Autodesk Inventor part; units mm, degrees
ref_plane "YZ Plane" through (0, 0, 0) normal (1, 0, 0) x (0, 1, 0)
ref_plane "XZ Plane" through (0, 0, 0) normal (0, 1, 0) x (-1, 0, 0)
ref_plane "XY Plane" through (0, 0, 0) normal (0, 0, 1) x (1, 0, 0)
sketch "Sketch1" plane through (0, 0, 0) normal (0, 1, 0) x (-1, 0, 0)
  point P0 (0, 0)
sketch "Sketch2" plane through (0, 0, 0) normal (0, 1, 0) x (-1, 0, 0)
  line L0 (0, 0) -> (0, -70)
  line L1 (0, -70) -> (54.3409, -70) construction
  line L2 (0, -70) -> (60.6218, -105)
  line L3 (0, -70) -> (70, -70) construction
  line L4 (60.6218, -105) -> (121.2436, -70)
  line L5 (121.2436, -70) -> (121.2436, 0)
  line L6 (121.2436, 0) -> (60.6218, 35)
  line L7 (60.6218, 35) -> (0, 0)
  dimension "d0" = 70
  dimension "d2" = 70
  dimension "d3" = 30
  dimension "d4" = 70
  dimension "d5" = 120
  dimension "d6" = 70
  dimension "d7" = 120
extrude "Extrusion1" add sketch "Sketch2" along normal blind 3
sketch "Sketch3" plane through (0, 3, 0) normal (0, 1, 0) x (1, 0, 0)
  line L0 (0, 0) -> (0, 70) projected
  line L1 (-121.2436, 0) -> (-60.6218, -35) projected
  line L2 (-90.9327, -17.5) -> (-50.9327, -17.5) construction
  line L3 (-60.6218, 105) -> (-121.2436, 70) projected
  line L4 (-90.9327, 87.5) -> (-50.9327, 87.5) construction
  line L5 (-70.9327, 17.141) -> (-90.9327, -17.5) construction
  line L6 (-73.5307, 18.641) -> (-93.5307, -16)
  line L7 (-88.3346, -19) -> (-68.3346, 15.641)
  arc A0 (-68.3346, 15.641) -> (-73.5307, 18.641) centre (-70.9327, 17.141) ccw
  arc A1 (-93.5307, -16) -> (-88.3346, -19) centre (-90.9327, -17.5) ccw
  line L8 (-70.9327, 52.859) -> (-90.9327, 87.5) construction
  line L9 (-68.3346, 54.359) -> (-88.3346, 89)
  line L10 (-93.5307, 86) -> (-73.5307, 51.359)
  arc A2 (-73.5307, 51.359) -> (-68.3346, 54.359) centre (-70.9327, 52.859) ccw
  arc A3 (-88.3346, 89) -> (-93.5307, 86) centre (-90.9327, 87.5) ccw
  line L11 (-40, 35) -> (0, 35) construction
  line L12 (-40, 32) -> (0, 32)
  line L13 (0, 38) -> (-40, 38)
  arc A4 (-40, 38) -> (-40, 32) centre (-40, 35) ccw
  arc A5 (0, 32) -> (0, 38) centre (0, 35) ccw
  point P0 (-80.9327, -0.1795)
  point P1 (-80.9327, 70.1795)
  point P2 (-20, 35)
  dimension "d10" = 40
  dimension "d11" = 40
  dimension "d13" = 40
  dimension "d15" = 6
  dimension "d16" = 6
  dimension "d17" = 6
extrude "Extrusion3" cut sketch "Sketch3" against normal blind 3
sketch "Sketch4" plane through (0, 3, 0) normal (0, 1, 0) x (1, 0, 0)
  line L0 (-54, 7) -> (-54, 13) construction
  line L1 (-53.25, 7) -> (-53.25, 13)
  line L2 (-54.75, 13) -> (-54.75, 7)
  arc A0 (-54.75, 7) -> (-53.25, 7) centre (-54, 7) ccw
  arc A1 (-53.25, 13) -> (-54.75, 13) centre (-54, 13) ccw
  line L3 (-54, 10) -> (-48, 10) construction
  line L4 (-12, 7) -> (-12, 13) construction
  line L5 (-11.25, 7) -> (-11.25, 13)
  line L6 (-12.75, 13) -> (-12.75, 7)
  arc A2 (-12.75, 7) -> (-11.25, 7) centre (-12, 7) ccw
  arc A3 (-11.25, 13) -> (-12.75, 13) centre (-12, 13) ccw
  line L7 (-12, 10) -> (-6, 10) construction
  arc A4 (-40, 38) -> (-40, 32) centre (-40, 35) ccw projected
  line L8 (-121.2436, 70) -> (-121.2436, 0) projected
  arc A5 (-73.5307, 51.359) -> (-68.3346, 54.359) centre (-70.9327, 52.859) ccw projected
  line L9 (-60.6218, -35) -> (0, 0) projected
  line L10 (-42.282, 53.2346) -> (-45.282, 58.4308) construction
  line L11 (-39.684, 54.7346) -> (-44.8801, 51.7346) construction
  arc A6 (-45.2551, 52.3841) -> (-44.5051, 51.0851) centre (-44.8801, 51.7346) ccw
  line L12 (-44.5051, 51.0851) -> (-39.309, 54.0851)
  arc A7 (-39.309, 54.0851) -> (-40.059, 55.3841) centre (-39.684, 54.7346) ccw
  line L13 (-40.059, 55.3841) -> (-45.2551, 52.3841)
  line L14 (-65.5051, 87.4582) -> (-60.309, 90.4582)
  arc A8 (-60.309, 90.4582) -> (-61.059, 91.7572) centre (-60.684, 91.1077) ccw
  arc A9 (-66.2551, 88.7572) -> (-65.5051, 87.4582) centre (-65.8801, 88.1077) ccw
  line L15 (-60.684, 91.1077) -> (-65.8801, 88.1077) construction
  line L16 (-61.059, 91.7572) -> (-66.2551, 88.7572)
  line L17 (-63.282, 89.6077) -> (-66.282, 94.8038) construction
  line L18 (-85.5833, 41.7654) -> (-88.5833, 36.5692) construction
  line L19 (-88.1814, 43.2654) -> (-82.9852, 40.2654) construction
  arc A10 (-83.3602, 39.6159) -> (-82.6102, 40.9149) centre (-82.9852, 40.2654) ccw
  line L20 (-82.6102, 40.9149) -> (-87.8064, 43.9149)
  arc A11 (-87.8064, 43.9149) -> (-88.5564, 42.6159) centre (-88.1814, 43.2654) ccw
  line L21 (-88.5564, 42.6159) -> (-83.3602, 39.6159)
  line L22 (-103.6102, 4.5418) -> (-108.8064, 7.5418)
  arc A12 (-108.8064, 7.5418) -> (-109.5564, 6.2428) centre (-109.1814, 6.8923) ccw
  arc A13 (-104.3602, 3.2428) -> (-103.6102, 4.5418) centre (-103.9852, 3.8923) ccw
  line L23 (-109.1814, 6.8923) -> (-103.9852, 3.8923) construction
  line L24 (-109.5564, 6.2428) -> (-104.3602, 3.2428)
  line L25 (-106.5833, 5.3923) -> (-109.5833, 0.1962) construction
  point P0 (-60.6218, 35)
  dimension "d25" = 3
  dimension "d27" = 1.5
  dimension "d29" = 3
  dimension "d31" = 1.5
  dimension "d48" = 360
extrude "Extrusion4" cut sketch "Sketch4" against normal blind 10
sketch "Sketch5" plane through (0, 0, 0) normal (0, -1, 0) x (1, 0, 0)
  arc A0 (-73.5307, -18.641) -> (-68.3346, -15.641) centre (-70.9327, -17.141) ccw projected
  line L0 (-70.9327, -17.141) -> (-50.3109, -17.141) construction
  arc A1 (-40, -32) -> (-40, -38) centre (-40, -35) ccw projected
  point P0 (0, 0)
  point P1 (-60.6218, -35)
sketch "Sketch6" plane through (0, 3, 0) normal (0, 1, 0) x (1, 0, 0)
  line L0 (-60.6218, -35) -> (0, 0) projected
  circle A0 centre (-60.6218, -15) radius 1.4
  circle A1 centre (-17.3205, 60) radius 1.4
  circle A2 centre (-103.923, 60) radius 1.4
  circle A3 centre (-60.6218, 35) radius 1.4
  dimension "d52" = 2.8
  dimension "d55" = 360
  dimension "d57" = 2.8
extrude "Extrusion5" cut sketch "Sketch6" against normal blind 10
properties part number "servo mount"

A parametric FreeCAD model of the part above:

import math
import FreeCAD as App
import Part
import Sketcher
from FreeCAD import Vector
Q = App.Units.Quantity


def add_polygon(sketch, points):
    """Adds a closed chain of lines whose ends are joined by coincident constraints."""
    first, n = sketch.GeometryCount, len(points)
    for a, b in zip(points, points[1:] + points[:1]):
        sketch.addGeometry(Part.LineSegment(App.Vector(*a, 0), App.Vector(*b, 0)), False)
    for i in range(n):
        sketch.addConstraint(Sketcher.Constraint("Coincident", first + i, 2, first + (i + 1) % n, 1))

doc = App.newDocument("Part")
params = doc.addObject("Spreadsheet::Sheet", "Params")
for row, (alias, value) in enumerate([
    ("sketch1_height", "70 mm"),
    ("sketch1_length", "70 mm"),
    ("pad1_length", "3 mm"),
    ("sketch2_radius", "3 mm"),
    ("sketch2_width", "40 mm"),
    ("sketch2_length", "40 mm"),
    ("pocket1_length", "3 mm"),
    ("sketch3_radius", "0.75 mm"),
    ("sketch3_height", "6 mm"),
    ("pocket2_length", "10 mm"),
    ("sketch4_diameter", "2.8 mm"),
    ("pocket3_length", "10 mm"),
], start=1):
    params.set(f"A{row}", alias)
    params.set(f"B{row}", "=" + value)
    params.setAlias(f"B{row}", alias)

body = doc.addObject("PartDesign::Body", "Body")

sketch1 = body.newObject("Sketcher::SketchObject", "Sketch")
sketch1.AttachmentSupport = (doc.getObject("XZ_Plane"), [""])
sketch1.MapMode = "FlatFace"
add_polygon(sketch1, [(-61, 35), (0, 0), (0, -70), (-61, -105), (-121, -70), (-121, 0)])
sketch1.addConstraint([
    Sketcher.Constraint("Vertical", 1),
    Sketcher.Constraint("Vertical", 4),
    Sketcher.Constraint("Coincident", 0, 2, -1, 1),
    Sketcher.Constraint("PointOnObject", 4, 2, -1),
    Sketcher.Constraint("Parallel", 0, 3),
    Sketcher.Constraint("Parallel", 2, 5),
    Sketcher.Constraint("Horizontal", 1, 2, 3, 2),
    Sketcher.Constraint("Vertical", 2, 2, 5, 2),
    Sketcher.Constraint("DistanceY", 1, 2, 1, 1, Q("70 mm")),
    Sketcher.Constraint("Angle", 0, Q("-30 deg")),
    Sketcher.Constraint("Distance", 0, Q("70 mm")),
])
sketch1.setExpression("Constraints[14]", "Params.sketch1_height")
sketch1.setExpression("Constraints[16]", "Params.sketch1_length")
pad1 = body.newObject("PartDesign::Pad", "Pad")
pad1.Profile = sketch1
pad1.setExpression("Length", "Params.pad1_length")
pad1.Reversed = True

sketch2 = body.newObject("Sketcher::SketchObject", "Sketch001")
sketch2.AttachmentSupport = (doc.getObject("XZ_Plane"), [""])
sketch2.MapMode = "FlatFace"
sketch2.AttachmentOffset = App.Placement(Vector(0, 0, -3), App.Rotation())
sketch2.addGeometry([
    Part.LineSegment(Vector(-40, -32, 0), Vector(0, -32, 0)),
    Part.ArcOfCircle(Part.Circle(Vector(0, -35, 0), Vector(0, 0, 1), 3), math.radians(-90), math.radians(90)),
    Part.LineSegment(Vector(0, -38, 0), Vector(-40, -38, 0)),
    Part.ArcOfCircle(Part.Circle(Vector(-40, -35, 0), Vector(0, 0, 1), 3), math.radians(90), math.radians(270)),
    Part.LineSegment(Vector(-73.5, -18.6, 0), Vector(-93.5, 16, 0)),
    Part.ArcOfCircle(Part.Circle(Vector(-90.9, 17.5, 0), Vector(0, 0, 1), 3), math.radians(30), math.radians(210)),
    Part.LineSegment(Vector(-88.3, 19, 0), Vector(-68.3, -15.6, 0)),
    Part.ArcOfCircle(Part.Circle(Vector(-70.9, -17.1, 0), Vector(0, 0, 1), 3), math.radians(-150), math.radians(30)),
    Part.LineSegment(Vector(-68.3, -54.4, 0), Vector(-88.3, -89, 0)),
    Part.ArcOfCircle(Part.Circle(Vector(-90.9, -87.5, 0), Vector(0, 0, 1), 3), math.radians(150), math.radians(330)),
    Part.LineSegment(Vector(-93.5, -86, 0), Vector(-73.5, -51.4, 0)),
    Part.ArcOfCircle(Part.Circle(Vector(-70.9, -52.9, 0), Vector(0, 0, 1), 3), math.radians(-30), math.radians(150)),
], False)
sketch2.addConstraint([
    Sketcher.Constraint("Tangent", 0, 2, 1, 2),
    Sketcher.Constraint("Tangent", 1, 1, 2, 1),
    Sketcher.Constraint("Tangent", 2, 2, 3, 2),
    Sketcher.Constraint("Tangent", 3, 1, 0, 1),
    Sketcher.Constraint("Tangent", 4, 2, 5, 2),
    Sketcher.Constraint("Tangent", 5, 1, 6, 1),
    Sketcher.Constraint("Tangent", 6, 2, 7, 2),
    Sketcher.Constraint("Tangent", 7, 1, 4, 1),
    Sketcher.Constraint("Tangent", 8, 2, 9, 2),
    Sketcher.Constraint("Tangent", 9, 1, 10, 1),
    Sketcher.Constraint("Tangent", 10, 2, 11, 2),
    Sketcher.Constraint("Tangent", 11, 1, 8, 1),
    Sketcher.Constraint("Horizontal", 0),
    Sketcher.Constraint("Horizontal", 2),
    Sketcher.Constraint("Equal", 3, 5),
    Sketcher.Constraint("Equal", 5, 7),
    Sketcher.Constraint("Equal", 7, 9),
    Sketcher.Constraint("Equal", 9, 11),
    Sketcher.Constraint("PointOnObject", 1, 3, -2),
    Sketcher.Constraint("Vertical", 5, 3, 9, 3),
    Sketcher.Constraint("Vertical", 7, 3, 11, 3),
    Sketcher.Constraint("Vertical", 5, 1, 8, 2),
    Sketcher.Constraint("Radius", 1, Q("3 mm")),
    Sketcher.Constraint("DistanceX", 0, 1, 0, 2, Q("40 mm")),
    Sketcher.Constraint("Distance", 4, Q("40 mm")),
    Sketcher.Constraint("Angle", 4, Q("120 deg")),
    Sketcher.Constraint("DistanceY", 1, 3, -1, 1, Q("35 mm")),
    Sketcher.Constraint("DistanceY", -1, 1, 4, 2, Q("16 mm")),
    Sketcher.Constraint("DistanceY", 8, 2, -1, 1, Q("89 mm")),
    Sketcher.Constraint("DistanceX", 5, 3, -1, 1, Q("90.9327 mm")),
])
sketch2.setExpression("Constraints[22]", "Params.sketch2_radius")
sketch2.setExpression("Constraints[23]", "Params.sketch2_width")
sketch2.setExpression("Constraints[24]", "Params.sketch2_length")
pocket1 = body.newObject("PartDesign::Pocket", "Pocket")
pocket1.Profile = sketch2
pocket1.setExpression("Length", "Params.pocket1_length")
pocket1.Reversed = True

sketch3 = body.newObject("Sketcher::SketchObject", "Sketch002")
sketch3.AttachmentSupport = (doc.getObject("XZ_Plane"), [""])
sketch3.MapMode = "FlatFace"
sketch3.AttachmentOffset = App.Placement(Vector(0, 0, -3), App.Rotation())
sketch3.addGeometry([
    Part.ArcOfCircle(Part.Circle(Vector(-54, -7, 0), Vector(0, 0, 1), 0.8), math.radians(0), math.radians(180)),
    Part.LineSegment(Vector(-53.2, -7, 0), Vector(-53.2, -13, 0)),
    Part.ArcOfCircle(Part.Circle(Vector(-54, -13, 0), Vector(0, 0, 1), 0.8), math.radians(180), math.radians(360)),
    Part.LineSegment(Vector(-54.8, -13, 0), Vector(-54.8, -7, 0)),
    Part.ArcOfCircle(Part.Circle(Vector(-12, -7, 0), Vector(0, 0, 1), 0.8), math.radians(0), math.radians(180)),
    Part.LineSegment(Vector(-11.2, -7, 0), Vector(-11.2, -13, 0)),
    Part.ArcOfCircle(Part.Circle(Vector(-12, -13, 0), Vector(0, 0, 1), 0.8), math.radians(180), math.radians(360)),
    Part.LineSegment(Vector(-12.8, -13, 0), Vector(-12.8, -7, 0)),
    Part.LineSegment(Vector(-40.1, -55.4, 0), Vector(-45.3, -52.4, 0)),
    Part.ArcOfCircle(Part.Circle(Vector(-44.9, -51.7, 0), Vector(0, 0, 1), 0.7), math.radians(60), math.radians(240)),
    Part.LineSegment(Vector(-44.5, -51.1, 0), Vector(-39.3, -54.1, 0)),
    Part.ArcOfCircle(Part.Circle(Vector(-39.7, -54.7, 0), Vector(0, 0, 1), 0.7), math.radians(-120), math.radians(60)),
    Part.ArcOfCircle(Part.Circle(Vector(-65.9, -88.1, 0), Vector(0, 0, 1), 0.7), math.radians(60), math.radians(240)),
    Part.LineSegment(Vector(-65.5, -87.5, 0), Vector(-60.3, -90.5, 0)),
    Part.ArcOfCircle(Part.Circle(Vector(-60.7, -91.1, 0), Vector(0, 0, 1), 0.7), math.radians(-120), math.radians(60)),
    Part.LineSegment(Vector(-61.1, -91.8, 0), Vector(-66.3, -88.8, 0)),
    Part.LineSegment(Vector(-88.6, -42.6, 0), Vector(-83.4, -39.6, 0)),
    Part.ArcOfCircle(Part.Circle(Vector(-83, -40.3, 0), Vector(0, 0, 1), 0.7), math.radians(-60), math.radians(120)),
    Part.LineSegment(Vector(-82.6, -40.9, 0), Vector(-87.8, -43.9, 0)),
    Part.ArcOfCircle(Part.Circle(Vector(-88.2, -43.3, 0), Vector(0, 0, 1), 0.7), math.radians(120), math.radians(300)),
    Part.ArcOfCircle(Part.Circle(Vector(-104, -3.9, 0), Vector(0, 0, 1), 0.7), math.radians(-60), math.radians(120)),
    Part.LineSegment(Vector(-103.6, -4.5, 0), Vector(-108.8, -7.5, 0)),
    Part.ArcOfCircle(Part.Circle(Vector(-109.2, -6.9, 0), Vector(0, 0, 1), 0.7), math.radians(120), math.radians(300)),
    Part.LineSegment(Vector(-109.6, -6.2, 0), Vector(-104.4, -3.2, 0)),
], False)
sketch3.addConstraint([
    Sketcher.Constraint("Tangent", 0, 1, 1, 1),
    Sketcher.Constraint("Tangent", 1, 2, 2, 2),
    Sketcher.Constraint("Tangent", 2, 1, 3, 1),
    Sketcher.Constraint("Tangent", 3, 2, 0, 2),
    Sketcher.Constraint("Tangent", 4, 1, 5, 1),
    Sketcher.Constraint("Tangent", 5, 2, 6, 2),
    Sketcher.Constraint("Tangent", 6, 1, 7, 1),
    Sketcher.Constraint("Tangent", 7, 2, 4, 2),
    Sketcher.Constraint("Tangent", 8, 2, 9, 2),
    Sketcher.Constraint("Tangent", 9, 1, 10, 1),
    Sketcher.Constraint("Tangent", 10, 2, 11, 2),
    Sketcher.Constraint("Tangent", 11, 1, 8, 1),
    Sketcher.Constraint("Tangent", 12, 1, 13, 1),
    Sketcher.Constraint("Tangent", 13, 2, 14, 2),
    Sketcher.Constraint("Tangent", 14, 1, 15, 1),
    Sketcher.Constraint("Tangent", 15, 2, 12, 2),
    Sketcher.Constraint("Tangent", 16, 2, 17, 2),
    Sketcher.Constraint("Tangent", 17, 1, 18, 1),
    Sketcher.Constraint("Tangent", 18, 2, 19, 2),
    Sketcher.Constraint("Tangent", 19, 1, 16, 1),
    Sketcher.Constraint("Tangent", 20, 1, 21, 1),
    Sketcher.Constraint("Tangent", 21, 2, 22, 2),
    Sketcher.Constraint("Tangent", 22, 1, 23, 1),
    Sketcher.Constraint("Tangent", 23, 2, 20, 2),
    Sketcher.Constraint("Vertical", 1),
    Sketcher.Constraint("Vertical", 3),
    Sketcher.Constraint("Vertical", 5),
    Sketcher.Constraint("Vertical", 7),
    Sketcher.Constraint("Equal", 2, 4),
    Sketcher.Constraint("Equal", 6, 9),
    Sketcher.Constraint("Equal", 9, 11),
    Sketcher.Constraint("Equal", 11, 12),
    Sketcher.Constraint("Equal", 12, 14),
    Sketcher.Constraint("Equal", 14, 17),
    Sketcher.Constraint("Equal", 17, 19),
    Sketcher.Constraint("Equal", 19, 20),
    Sketcher.Constraint("Equal", 20, 22),
    Sketcher.Constraint("Parallel", 10, 13),
    Sketcher.Constraint("Parallel", 18, 21),
    Sketcher.Constraint("Horizontal", 0, 3, 4, 3),
    Sketcher.Constraint("Horizontal", 2, 3, 6, 3),
    Sketcher.Constraint("Equal", 10, 13),
    Sketcher.Constraint("Equal", 15, 16),
    Sketcher.Constraint("Equal", 18, 21),
    Sketcher.Constraint("Radius", 0, Q("0.75 mm")),
    Sketcher.Constraint("DistanceY", 11, 3, 9, 3, Q("3 mm")),
    Sketcher.Constraint("DistanceY", 19, 3, 17, 3, Q("3 mm")),
    Sketcher.Constraint("DistanceY", 1, 2, 1, 1, Q("6 mm")),
    Sketcher.Constraint("Angle", 8, Q("149.9997 deg")),
    Sketcher.Constraint("DistanceX", 0, 3, -1, 1, Q("54 mm")),
    Sketcher.Constraint("DistanceY", 0, 3, -1, 1, Q("7 mm")),
    Sketcher.Constraint("DistanceX", 4, 3, -1, 1, Q("12 mm")),
    Sketcher.Constraint("DistanceX", 12, 3, 9, 3, Q("21 mm")),
    Sketcher.Constraint("DistanceX", 20, 3, 17, 3, Q("21 mm")),
    Sketcher.Constraint("DistanceX", 9, 3, -1, 1, Q("44.88 mm")),
    Sketcher.Constraint("DistanceX", 17, 3, 8, 2, Q("37.73 mm")),
    Sketcher.Constraint("DistanceY", 8, 2, -1, 1, Q("52.384 mm")),
    Sketcher.Constraint("DistanceY", 16, 2, -1, 1, Q("39.616 mm")),
    Sketcher.Constraint("DistanceY", 12, 3, 9, 3, Q("36.373 mm")),
    Sketcher.Constraint("DistanceY", 17, 3, 20, 3, Q("36.373 mm")),
])
sketch3.setExpression("Constraints[44]", "Params.sketch3_radius")
sketch3.setExpression("Constraints[47]", "Params.sketch3_height")
pocket2 = body.newObject("PartDesign::Pocket", "Pocket001")
pocket2.Profile = sketch3
pocket2.setExpression("Length", "Params.pocket2_length")
pocket2.Reversed = True

sketch4 = body.newObject("Sketcher::SketchObject", "Sketch003")
sketch4.AttachmentSupport = (doc.getObject("XZ_Plane"), [""])
sketch4.MapMode = "FlatFace"
sketch4.AttachmentOffset = App.Placement(Vector(0, 0, -3), App.Rotation())
sketch4.addGeometry([
    Part.Circle(Vector(-60.6, 15, 0), Vector(0, 0, 1), 1.4),
    Part.Circle(Vector(-17.3, -60, 0), Vector(0, 0, 1), 1.4),
    Part.Circle(Vector(-103.9, -60, 0), Vector(0, 0, 1), 1.4),
    Part.Circle(Vector(-60.6, -35, 0), Vector(0, 0, 1), 1.4),
], False)
sketch4.addConstraint([
    Sketcher.Constraint("Equal", 0, 1),
    Sketcher.Constraint("Equal", 1, 2),
    Sketcher.Constraint("Equal", 2, 3),
    Sketcher.Constraint("Horizontal", 1, 3, 2, 3),
    Sketcher.Constraint("Vertical", 0, 3, 3, 3),
    Sketcher.Constraint("Diameter", 0, Q("2.8 mm")),
    Sketcher.Constraint("DistanceY", -1, 1, 0, 3, Q("15 mm")),
    Sketcher.Constraint("DistanceY", 1, 3, -1, 1, Q("60 mm")),
    Sketcher.Constraint("DistanceY", 3, 3, -1, 1, Q("35 mm")),
    Sketcher.Constraint("DistanceX", 2, 3, -1, 1, Q("103.923 mm")),
    Sketcher.Constraint("DistanceX", 0, 3, -1, 1, Q("60.6218 mm")),
    Sketcher.Constraint("DistanceX", 1, 3, -1, 1, Q("17.3205 mm")),
])
sketch4.setExpression("Constraints[5]", "Params.sketch4_diameter")
pocket3 = body.newObject("PartDesign::Pocket", "Pocket002")
pocket3.Profile = sketch4
pocket3.setExpression("Length", "Params.pocket3_length")
pocket3.Reversed = True

doc.recompute()
